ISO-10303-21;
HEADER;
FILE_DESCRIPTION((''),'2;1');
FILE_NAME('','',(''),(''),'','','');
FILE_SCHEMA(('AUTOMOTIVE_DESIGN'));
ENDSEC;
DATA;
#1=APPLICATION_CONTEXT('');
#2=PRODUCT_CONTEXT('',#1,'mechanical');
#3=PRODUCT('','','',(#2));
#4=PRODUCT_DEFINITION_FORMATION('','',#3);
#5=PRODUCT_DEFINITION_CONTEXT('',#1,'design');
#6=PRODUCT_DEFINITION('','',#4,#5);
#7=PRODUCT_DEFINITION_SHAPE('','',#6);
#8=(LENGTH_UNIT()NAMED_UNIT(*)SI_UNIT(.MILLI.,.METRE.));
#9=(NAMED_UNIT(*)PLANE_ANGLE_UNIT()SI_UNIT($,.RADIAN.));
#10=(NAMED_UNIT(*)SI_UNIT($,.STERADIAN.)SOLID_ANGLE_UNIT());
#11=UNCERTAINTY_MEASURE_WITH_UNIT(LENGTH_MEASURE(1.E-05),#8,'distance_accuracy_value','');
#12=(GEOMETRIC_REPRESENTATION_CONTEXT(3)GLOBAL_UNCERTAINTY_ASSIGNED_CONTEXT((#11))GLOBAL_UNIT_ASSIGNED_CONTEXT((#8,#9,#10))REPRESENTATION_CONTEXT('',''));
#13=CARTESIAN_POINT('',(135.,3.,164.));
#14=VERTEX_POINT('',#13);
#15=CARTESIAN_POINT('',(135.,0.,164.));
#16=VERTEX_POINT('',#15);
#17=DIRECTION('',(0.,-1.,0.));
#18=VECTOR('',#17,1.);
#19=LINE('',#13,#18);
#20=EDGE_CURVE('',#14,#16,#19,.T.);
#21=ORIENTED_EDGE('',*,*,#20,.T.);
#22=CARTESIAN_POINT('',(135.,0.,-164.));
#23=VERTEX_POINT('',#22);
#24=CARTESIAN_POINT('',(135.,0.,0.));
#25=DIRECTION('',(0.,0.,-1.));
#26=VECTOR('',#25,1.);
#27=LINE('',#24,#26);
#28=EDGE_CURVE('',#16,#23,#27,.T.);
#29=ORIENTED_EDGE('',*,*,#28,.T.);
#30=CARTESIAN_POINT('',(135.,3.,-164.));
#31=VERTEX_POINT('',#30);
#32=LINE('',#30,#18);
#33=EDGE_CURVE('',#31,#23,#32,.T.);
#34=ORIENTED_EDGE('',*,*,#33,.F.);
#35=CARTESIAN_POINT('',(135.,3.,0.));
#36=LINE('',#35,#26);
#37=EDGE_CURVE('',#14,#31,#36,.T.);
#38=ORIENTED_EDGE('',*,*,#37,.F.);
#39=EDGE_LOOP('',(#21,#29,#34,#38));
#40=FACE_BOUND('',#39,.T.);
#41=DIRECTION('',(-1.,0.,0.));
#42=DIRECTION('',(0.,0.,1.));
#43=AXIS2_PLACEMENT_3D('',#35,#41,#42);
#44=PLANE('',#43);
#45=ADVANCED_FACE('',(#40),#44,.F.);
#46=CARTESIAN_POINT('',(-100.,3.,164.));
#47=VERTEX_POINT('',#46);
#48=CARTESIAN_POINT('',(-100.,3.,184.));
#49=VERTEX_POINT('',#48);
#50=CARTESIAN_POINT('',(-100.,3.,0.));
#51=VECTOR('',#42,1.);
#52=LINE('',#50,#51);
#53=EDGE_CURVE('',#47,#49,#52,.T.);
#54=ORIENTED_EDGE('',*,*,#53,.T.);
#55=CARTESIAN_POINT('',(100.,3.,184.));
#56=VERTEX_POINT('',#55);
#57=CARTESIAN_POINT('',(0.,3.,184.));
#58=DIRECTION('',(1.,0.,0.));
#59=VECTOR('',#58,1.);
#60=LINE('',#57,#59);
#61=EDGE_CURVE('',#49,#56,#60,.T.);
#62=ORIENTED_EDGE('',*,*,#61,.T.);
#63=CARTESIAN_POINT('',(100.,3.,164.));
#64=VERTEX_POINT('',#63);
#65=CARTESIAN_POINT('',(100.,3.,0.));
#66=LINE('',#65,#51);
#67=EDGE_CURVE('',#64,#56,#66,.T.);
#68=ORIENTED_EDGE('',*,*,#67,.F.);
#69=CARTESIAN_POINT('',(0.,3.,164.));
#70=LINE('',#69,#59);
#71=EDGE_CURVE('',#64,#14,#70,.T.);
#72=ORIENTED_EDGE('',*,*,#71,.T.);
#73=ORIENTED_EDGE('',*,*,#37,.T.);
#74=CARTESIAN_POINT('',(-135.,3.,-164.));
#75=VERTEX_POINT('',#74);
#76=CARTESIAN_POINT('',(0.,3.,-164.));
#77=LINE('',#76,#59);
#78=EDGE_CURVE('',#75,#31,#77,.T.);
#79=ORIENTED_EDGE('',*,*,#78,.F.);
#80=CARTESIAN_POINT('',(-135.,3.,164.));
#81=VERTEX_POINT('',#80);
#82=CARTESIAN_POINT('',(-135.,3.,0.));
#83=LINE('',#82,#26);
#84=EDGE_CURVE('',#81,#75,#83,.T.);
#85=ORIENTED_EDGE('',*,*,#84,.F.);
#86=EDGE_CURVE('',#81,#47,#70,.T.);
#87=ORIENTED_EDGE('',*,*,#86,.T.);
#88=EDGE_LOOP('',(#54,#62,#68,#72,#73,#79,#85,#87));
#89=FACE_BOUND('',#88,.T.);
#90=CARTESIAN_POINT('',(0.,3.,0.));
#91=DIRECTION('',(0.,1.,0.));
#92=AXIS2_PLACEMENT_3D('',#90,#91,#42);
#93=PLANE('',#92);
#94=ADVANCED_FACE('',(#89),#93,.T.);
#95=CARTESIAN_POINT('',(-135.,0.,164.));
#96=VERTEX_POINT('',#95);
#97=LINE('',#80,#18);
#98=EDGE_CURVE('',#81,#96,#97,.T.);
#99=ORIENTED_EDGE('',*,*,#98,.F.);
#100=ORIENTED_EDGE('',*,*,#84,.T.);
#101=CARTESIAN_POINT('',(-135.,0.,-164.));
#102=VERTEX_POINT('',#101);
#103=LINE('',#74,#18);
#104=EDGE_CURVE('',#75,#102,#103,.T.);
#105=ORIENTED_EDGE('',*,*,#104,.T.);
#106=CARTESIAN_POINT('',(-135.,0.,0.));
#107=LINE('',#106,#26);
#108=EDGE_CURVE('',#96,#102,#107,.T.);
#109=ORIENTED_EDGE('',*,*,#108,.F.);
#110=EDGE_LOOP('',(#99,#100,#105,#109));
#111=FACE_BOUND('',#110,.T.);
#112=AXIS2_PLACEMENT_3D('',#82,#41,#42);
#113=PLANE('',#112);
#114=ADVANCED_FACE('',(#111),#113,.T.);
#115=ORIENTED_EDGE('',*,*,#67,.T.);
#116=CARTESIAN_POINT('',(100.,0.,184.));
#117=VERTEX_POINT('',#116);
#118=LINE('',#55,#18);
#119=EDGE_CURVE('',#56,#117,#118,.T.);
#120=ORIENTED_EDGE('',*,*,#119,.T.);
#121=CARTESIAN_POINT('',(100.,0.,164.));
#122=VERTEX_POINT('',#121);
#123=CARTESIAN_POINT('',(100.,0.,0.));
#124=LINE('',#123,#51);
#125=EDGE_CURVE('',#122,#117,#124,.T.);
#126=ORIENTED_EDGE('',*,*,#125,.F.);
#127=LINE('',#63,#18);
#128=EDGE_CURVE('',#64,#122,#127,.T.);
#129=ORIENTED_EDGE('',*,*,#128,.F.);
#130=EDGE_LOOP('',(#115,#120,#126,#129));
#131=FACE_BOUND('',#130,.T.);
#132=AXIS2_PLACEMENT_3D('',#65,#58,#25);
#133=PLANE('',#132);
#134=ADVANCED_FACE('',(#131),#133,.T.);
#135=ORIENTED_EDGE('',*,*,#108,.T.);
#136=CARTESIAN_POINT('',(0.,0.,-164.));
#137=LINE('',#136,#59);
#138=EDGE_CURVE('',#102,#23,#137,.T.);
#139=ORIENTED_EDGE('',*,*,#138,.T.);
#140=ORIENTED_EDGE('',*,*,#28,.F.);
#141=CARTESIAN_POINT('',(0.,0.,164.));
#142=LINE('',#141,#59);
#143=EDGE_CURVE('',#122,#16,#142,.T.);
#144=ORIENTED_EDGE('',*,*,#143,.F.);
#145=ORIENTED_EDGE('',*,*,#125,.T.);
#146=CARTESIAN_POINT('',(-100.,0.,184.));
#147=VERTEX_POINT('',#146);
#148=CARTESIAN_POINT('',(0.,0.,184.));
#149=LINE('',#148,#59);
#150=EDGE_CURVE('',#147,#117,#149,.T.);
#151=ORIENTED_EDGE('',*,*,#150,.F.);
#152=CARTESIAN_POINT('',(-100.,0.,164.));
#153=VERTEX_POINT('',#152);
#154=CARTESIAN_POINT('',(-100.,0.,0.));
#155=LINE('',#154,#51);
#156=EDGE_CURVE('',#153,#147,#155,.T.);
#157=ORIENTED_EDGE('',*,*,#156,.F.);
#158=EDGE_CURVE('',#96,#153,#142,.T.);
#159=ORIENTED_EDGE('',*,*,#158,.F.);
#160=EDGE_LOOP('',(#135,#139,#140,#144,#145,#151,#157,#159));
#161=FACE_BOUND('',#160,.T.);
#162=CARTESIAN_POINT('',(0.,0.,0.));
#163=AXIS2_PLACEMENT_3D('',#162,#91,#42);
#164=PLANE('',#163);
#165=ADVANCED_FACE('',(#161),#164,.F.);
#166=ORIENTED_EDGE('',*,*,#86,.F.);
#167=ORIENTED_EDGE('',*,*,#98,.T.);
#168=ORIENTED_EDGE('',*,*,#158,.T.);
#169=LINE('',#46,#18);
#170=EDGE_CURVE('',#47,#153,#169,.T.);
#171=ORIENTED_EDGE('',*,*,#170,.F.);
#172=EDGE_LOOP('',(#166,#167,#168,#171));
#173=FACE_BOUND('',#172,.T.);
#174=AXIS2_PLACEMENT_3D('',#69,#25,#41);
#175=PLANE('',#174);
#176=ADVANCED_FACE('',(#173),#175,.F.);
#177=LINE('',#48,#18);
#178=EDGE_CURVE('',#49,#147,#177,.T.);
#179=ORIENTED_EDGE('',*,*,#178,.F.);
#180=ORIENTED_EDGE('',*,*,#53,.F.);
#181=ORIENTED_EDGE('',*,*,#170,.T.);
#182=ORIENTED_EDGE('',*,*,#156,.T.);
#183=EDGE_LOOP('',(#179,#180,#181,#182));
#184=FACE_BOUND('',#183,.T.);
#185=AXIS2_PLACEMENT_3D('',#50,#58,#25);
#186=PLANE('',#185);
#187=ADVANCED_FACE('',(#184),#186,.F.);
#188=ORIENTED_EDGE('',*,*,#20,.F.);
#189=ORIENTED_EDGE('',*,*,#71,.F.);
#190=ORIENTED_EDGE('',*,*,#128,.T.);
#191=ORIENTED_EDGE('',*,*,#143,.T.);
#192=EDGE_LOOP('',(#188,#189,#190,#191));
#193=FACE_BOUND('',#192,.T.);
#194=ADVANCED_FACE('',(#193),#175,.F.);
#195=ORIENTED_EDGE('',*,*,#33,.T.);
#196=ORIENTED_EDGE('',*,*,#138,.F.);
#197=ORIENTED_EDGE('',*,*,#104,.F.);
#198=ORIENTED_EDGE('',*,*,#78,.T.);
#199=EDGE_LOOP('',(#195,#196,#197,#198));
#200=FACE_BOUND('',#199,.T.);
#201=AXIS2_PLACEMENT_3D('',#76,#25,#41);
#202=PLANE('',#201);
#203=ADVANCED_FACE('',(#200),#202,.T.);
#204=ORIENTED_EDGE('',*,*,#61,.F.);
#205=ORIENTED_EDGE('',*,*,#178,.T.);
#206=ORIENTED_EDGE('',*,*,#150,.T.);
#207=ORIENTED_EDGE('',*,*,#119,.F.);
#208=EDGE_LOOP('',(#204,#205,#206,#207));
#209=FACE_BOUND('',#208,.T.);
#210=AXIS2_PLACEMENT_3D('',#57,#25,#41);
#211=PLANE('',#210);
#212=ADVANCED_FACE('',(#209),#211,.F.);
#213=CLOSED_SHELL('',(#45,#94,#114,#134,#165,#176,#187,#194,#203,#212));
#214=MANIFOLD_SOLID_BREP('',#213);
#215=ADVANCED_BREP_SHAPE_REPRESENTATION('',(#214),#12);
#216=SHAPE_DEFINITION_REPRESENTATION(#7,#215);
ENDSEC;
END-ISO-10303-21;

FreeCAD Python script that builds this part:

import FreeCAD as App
import Part
import Sketcher
from FreeCAD import Vector


def add_polygon(sketch, points):
    """Adds a closed chain of lines whose ends are joined by coincident constraints."""
    first, n = sketch.GeometryCount, len(points)
    for a, b in zip(points, points[1:] + points[:1]):
        sketch.addGeometry(Part.LineSegment(App.Vector(*a, 0), App.Vector(*b, 0)), False)
    for i in range(n):
        sketch.addConstraint(Sketcher.Constraint("Coincident", first + i, 2, first + (i + 1) % n, 1))

doc = App.newDocument("Part")
body = doc.addObject("PartDesign::Body", "Body")

# Sketch on XZ plane
sketch1 = body.newObject("Sketcher::SketchObject", "Sketch")
sketch1.AttachmentSupport = (doc.getObject("XZ_Plane"), [""])
sketch1.MapMode = "FlatFace"
add_polygon(sketch1, [(-100, 164), (-100, 184), (100, 184), (100, 164), (135, 164), (135, -164), (-135, -164), (-135, 164)])  # lines 0-7
sketch1.addConstraint([
    Sketcher.Constraint("Vertical", 0),
    Sketcher.Constraint("Horizontal", 1),
    Sketcher.Constraint("Vertical", 2),
    Sketcher.Constraint("Horizontal", 3),
    Sketcher.Constraint("Vertical", 4),
    Sketcher.Constraint("Horizontal", 5),
    Sketcher.Constraint("Vertical", 6),
    Sketcher.Constraint("Horizontal", 7),
    Sketcher.Constraint("Symmetric", 3, 2, 5, 2, -1, 1),
    Sketcher.Constraint("Symmetric", 2, 2, 7, 2, -2),
    Sketcher.Constraint("DistanceX", 1, 1, 1, 2, 200.0),
    Sketcher.Constraint("DistanceX", 3, 1, 3, 2, 35.0),
    Sketcher.Constraint("DistanceY", 0, 1, 0, 2, 20.0),
    Sketcher.Constraint("DistanceY", 4, 2, 4, 1, 328.0),
])
pad1 = body.newObject("PartDesign::Pad", "Pad")
pad1.Profile = sketch1
pad1.Length = 3
pad1.Reversed = True

doc.recompute()
